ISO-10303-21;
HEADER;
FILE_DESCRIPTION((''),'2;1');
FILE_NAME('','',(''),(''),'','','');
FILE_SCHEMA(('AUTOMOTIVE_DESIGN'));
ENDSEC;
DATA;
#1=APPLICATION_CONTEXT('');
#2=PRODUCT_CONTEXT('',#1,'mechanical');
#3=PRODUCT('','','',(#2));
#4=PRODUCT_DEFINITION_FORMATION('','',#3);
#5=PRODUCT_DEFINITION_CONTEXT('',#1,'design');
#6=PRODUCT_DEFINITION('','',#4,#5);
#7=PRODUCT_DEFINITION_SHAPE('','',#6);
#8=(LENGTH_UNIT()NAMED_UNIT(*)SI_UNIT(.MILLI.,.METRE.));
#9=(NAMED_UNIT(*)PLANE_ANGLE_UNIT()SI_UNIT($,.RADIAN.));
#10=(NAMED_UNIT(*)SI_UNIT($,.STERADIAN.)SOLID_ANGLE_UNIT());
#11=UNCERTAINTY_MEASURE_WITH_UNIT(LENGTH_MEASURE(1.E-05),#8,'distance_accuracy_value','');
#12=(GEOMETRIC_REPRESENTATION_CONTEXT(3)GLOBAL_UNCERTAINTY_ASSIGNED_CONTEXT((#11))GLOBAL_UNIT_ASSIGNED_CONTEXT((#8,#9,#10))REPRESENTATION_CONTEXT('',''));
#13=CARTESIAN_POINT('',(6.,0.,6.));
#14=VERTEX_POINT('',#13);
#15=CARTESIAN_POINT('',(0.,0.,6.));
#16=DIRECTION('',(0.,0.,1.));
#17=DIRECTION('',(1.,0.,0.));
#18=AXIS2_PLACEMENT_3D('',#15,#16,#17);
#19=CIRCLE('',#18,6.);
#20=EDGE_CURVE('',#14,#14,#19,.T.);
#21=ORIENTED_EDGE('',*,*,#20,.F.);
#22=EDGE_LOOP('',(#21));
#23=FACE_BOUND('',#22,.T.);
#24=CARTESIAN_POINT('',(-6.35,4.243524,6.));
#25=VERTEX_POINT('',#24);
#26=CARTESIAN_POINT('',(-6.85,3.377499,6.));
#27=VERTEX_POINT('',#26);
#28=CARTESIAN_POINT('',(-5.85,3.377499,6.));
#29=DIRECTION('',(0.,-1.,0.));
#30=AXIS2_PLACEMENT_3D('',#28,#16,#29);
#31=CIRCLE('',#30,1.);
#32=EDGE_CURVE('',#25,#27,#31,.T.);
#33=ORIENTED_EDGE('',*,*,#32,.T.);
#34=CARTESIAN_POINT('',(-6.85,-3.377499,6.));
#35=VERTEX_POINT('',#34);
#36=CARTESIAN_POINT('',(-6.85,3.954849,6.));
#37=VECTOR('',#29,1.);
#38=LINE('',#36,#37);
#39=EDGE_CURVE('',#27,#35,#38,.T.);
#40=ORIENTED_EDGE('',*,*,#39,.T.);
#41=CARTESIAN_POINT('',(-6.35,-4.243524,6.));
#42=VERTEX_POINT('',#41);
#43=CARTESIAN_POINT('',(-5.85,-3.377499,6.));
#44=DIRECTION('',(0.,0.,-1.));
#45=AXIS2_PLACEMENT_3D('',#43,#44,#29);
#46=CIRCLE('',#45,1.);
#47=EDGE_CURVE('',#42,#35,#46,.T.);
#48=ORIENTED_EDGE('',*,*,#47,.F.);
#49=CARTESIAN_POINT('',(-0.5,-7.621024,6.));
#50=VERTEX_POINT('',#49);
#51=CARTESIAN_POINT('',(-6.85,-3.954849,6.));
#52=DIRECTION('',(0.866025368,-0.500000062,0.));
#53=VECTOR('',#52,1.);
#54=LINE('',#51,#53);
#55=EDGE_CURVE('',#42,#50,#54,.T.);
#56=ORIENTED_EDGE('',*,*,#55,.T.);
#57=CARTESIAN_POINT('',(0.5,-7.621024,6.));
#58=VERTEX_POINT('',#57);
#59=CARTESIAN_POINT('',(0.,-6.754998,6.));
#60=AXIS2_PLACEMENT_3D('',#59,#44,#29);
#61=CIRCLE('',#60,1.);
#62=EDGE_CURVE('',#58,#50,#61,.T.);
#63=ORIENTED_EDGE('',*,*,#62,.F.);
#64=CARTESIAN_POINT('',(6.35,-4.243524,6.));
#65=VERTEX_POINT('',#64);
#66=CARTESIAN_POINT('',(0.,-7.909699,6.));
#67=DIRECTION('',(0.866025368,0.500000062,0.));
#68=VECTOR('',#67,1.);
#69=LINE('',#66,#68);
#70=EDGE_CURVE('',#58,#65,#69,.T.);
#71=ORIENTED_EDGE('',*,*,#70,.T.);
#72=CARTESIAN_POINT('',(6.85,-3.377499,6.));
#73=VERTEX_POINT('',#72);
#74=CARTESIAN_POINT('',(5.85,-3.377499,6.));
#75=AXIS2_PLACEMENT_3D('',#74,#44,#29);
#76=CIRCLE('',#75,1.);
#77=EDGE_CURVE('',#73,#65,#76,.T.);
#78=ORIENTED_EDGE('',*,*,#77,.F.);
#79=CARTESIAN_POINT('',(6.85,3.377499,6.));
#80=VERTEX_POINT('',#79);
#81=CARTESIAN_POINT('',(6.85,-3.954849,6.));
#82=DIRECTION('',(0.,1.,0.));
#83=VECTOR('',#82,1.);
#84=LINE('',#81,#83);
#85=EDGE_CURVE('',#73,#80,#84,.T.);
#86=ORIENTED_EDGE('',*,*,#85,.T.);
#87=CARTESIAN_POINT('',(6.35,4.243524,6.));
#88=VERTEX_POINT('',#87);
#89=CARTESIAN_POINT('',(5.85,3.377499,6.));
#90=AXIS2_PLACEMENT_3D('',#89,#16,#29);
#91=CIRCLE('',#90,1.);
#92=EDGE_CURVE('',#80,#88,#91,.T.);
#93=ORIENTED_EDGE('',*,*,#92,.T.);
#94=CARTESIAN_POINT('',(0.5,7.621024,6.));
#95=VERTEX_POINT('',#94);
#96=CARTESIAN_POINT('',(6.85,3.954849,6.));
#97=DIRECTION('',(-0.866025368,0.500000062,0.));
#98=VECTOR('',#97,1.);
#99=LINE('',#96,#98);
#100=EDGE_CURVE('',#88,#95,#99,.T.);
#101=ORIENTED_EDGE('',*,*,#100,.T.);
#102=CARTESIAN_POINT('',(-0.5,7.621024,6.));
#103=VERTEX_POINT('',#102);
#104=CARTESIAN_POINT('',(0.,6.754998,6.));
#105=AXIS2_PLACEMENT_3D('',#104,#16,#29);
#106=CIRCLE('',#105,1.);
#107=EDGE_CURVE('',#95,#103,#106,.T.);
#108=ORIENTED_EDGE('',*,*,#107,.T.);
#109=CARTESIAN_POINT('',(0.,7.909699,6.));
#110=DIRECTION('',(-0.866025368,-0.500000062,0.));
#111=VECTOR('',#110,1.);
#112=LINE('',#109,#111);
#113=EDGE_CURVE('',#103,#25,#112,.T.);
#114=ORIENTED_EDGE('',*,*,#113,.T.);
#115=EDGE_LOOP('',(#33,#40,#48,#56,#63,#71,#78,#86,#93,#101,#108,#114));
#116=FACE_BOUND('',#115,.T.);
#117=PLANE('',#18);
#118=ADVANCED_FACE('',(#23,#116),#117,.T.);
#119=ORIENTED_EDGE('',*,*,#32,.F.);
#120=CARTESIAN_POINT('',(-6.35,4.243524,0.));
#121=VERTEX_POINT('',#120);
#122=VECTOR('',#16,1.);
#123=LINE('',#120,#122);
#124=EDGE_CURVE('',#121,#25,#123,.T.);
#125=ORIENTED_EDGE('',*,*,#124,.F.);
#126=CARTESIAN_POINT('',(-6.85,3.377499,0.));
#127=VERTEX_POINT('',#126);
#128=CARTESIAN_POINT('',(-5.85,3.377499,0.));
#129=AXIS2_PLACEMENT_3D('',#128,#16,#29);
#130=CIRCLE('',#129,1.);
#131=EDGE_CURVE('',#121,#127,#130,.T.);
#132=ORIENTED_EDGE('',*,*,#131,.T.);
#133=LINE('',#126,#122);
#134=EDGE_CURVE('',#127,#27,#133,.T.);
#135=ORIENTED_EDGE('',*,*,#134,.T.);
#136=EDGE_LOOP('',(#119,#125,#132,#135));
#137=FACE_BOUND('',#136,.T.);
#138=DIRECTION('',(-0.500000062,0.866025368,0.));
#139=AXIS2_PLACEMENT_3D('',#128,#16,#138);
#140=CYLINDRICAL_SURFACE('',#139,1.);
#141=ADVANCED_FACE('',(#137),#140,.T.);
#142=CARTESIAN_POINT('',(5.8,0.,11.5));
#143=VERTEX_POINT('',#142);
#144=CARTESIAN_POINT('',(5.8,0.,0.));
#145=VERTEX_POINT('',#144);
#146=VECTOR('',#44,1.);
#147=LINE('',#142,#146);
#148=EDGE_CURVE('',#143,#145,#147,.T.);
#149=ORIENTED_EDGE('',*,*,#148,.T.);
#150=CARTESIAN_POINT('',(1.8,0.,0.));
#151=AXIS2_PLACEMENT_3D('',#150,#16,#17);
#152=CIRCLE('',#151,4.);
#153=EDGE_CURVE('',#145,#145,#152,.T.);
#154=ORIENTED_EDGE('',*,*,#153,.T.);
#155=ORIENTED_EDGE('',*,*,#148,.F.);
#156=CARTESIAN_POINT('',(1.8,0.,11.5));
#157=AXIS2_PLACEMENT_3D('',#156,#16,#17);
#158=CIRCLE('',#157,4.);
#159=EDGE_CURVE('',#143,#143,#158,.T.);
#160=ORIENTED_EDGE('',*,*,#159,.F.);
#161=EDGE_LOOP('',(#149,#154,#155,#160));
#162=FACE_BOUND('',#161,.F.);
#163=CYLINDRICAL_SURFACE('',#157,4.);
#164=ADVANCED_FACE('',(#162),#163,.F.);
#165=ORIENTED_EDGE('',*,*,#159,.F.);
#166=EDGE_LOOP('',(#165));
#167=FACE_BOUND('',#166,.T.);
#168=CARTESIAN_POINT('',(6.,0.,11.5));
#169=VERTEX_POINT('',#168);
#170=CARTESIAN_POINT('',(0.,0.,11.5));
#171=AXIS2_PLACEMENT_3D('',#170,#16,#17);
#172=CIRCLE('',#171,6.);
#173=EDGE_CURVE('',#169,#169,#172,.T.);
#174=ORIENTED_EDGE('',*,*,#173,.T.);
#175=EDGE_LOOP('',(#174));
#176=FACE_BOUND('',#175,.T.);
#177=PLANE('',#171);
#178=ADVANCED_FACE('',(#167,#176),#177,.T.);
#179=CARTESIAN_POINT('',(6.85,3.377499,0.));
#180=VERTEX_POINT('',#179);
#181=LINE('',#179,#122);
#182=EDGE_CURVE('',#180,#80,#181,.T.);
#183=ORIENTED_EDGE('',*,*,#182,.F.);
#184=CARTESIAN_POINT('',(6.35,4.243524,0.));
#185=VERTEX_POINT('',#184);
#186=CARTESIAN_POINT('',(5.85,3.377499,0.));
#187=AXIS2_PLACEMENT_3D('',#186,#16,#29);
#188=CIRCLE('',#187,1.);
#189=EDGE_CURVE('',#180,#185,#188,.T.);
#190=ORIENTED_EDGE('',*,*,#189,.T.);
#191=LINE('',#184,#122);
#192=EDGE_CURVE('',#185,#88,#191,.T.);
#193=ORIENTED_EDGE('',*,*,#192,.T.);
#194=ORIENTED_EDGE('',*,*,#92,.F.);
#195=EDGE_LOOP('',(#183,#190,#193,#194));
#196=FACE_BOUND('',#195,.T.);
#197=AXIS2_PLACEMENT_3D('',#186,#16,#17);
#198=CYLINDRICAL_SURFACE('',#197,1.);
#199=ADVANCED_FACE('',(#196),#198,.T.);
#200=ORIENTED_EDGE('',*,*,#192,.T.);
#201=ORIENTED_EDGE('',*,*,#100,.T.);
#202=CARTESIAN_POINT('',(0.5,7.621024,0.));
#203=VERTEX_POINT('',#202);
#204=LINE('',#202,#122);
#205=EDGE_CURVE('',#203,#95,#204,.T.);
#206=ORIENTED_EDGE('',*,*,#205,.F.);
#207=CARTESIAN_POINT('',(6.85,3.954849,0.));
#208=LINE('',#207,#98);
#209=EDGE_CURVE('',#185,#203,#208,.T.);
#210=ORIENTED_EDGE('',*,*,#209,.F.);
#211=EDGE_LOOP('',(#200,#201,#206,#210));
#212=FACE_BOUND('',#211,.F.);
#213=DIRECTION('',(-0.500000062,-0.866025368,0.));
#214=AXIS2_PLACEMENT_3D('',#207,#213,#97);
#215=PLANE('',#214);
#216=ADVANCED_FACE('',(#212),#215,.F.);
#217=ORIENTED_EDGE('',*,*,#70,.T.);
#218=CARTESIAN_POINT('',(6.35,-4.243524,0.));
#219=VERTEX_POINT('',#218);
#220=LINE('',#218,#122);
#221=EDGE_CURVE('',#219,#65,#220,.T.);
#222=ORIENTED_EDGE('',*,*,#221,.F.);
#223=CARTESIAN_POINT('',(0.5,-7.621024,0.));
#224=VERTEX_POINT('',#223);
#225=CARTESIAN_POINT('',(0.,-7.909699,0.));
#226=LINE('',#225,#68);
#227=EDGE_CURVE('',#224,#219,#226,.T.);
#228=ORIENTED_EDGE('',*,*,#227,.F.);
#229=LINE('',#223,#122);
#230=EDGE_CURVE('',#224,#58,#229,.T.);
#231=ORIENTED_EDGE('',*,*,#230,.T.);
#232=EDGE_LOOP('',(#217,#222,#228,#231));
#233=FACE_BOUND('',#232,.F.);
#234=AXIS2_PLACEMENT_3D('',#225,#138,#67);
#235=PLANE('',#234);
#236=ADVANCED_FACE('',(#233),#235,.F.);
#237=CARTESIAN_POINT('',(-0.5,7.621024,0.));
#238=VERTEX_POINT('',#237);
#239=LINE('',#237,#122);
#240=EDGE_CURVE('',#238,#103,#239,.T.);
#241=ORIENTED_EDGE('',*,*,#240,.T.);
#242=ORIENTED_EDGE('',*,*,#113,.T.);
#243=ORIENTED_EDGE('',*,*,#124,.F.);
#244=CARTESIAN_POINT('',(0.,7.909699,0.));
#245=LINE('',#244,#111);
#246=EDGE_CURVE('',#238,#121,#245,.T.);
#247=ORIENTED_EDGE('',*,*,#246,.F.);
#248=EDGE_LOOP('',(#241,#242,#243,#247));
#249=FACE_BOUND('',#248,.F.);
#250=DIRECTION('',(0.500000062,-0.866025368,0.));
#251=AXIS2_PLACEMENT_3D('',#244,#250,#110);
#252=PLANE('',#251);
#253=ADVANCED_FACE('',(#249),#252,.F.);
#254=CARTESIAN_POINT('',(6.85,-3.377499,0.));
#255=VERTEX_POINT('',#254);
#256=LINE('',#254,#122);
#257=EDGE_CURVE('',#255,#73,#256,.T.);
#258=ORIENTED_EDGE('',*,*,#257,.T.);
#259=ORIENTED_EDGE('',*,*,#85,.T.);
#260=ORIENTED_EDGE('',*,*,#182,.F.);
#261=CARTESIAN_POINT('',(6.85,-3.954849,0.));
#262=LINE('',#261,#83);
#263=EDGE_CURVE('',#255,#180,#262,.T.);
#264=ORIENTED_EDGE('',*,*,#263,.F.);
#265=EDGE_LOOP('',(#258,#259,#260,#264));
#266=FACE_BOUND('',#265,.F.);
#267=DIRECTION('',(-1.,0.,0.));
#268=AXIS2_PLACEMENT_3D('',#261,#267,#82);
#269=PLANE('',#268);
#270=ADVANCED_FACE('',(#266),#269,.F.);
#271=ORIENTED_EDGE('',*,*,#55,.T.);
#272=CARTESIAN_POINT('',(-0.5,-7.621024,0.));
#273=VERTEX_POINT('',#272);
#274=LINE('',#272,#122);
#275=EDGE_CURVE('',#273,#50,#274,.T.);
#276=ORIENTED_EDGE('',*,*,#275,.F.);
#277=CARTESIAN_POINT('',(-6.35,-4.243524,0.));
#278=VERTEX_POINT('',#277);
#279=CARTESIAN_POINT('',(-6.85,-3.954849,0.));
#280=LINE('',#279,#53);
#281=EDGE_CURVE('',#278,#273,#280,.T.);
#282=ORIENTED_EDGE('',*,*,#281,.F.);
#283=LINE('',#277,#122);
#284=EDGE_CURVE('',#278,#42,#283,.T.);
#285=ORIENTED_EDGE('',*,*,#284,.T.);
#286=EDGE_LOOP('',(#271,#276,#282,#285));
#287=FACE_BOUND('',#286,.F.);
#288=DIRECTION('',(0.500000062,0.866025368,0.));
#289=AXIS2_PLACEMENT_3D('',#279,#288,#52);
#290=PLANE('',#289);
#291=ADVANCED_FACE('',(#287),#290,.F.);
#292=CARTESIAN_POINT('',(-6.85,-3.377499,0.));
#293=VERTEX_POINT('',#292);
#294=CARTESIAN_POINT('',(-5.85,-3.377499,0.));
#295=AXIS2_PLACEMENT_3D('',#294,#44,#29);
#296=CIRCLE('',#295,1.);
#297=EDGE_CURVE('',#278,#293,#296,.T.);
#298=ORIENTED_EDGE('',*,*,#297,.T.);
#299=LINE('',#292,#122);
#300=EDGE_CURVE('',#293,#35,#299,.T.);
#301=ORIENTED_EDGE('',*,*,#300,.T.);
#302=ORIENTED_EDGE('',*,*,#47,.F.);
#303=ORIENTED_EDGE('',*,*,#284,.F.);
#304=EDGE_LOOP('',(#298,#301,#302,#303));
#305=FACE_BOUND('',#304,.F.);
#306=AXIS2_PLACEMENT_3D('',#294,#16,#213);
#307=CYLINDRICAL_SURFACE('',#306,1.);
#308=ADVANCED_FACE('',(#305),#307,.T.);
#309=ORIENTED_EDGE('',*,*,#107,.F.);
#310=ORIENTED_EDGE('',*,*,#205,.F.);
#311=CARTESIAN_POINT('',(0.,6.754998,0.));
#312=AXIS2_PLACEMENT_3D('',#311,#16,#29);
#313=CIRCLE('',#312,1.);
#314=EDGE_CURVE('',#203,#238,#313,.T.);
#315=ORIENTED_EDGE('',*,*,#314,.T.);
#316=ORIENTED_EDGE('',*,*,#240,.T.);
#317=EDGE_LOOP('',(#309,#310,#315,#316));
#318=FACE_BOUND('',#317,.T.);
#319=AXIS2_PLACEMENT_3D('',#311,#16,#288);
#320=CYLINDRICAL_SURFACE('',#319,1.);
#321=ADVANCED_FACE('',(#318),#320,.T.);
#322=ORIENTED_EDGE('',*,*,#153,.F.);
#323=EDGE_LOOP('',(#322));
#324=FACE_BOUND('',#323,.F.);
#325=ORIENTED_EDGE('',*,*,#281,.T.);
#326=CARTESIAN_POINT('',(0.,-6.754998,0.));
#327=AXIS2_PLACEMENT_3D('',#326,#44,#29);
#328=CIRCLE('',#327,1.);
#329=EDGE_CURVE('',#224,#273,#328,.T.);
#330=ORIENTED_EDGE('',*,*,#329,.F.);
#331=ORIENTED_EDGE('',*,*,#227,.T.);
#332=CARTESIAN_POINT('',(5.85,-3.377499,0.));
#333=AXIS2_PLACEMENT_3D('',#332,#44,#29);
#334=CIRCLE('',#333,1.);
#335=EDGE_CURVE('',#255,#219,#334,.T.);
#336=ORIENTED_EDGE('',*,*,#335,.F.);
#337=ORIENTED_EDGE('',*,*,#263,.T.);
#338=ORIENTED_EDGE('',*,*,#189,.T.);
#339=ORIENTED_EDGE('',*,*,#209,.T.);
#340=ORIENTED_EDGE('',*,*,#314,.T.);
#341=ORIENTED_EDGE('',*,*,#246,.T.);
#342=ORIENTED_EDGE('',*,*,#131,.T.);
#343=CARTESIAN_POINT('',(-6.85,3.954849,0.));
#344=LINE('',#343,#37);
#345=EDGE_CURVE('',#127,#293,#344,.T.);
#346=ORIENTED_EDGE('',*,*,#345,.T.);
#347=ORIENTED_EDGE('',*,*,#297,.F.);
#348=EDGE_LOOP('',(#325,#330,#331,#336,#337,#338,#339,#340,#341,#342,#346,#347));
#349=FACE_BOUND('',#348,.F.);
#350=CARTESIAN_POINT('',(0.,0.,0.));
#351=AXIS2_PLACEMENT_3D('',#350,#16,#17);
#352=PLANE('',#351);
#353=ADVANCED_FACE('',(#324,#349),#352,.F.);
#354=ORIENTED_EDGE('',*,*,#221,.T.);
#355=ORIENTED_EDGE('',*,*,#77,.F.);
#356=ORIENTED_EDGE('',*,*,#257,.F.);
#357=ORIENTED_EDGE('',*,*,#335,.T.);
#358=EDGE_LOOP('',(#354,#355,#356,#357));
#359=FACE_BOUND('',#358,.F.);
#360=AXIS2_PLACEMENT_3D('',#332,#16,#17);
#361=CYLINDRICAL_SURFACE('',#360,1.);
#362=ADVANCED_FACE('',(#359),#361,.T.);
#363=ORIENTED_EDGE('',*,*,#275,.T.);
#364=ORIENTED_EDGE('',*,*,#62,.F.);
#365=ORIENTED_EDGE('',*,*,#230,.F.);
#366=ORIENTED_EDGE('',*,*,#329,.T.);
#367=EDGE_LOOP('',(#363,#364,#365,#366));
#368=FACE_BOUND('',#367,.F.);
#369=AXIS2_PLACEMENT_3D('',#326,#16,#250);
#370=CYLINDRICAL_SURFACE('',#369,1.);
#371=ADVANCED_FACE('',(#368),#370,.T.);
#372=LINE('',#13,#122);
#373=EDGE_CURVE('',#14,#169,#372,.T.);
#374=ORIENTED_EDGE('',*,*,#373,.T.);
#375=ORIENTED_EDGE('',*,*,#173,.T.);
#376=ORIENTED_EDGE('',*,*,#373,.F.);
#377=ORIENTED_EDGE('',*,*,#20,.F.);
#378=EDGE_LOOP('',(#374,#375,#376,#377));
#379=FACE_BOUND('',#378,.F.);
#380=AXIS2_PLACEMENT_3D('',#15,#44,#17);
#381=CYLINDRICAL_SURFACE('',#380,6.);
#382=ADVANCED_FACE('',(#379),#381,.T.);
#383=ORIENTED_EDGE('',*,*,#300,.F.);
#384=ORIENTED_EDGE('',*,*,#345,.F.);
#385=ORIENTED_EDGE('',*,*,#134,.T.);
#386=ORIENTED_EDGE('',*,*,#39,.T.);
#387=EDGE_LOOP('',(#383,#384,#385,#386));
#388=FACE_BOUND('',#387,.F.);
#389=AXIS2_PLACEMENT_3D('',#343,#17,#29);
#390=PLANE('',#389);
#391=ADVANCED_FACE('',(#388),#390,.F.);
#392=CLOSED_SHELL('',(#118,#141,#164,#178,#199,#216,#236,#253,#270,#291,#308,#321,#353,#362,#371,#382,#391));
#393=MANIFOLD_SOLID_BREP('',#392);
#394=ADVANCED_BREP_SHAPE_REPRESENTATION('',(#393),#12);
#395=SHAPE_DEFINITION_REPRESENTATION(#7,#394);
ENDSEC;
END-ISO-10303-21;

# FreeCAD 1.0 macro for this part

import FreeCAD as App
import Part
import Sketcher
from FreeCAD import Vector
Q = App.Units.Quantity


def edges_at(feature, points):
    """Names of the edges that pass closest to the given points."""
    edges = feature.Shape.Edges
    near = lambda p: min(range(len(edges)), key=lambda i: edges[i].distToShape(Part.Vertex(*p))[0])
    return sorted({f"Edge{near(p) + 1}" for p in points})


def add_polygon(sketch, points):
    """Adds a closed chain of lines whose ends are joined by coincident constraints."""
    first, n = sketch.GeometryCount, len(points)
    for a, b in zip(points, points[1:] + points[:1]):
        sketch.addGeometry(Part.LineSegment(App.Vector(*a, 0), App.Vector(*b, 0)), False)
    for i in range(n):
        sketch.addConstraint(Sketcher.Constraint("Coincident", first + i, 2, first + (i + 1) % n, 1))

doc = App.newDocument("Part")
body = doc.addObject("PartDesign::Body", "Body")

sketch1 = doc.addObject("Sketcher::SketchObject", "Sketch")
body.addObject(sketch1)
sketch1.AttachmentSupport = (doc.XY_Plane, [""])
sketch1.MapMode = "FlatFace"
add_polygon(sketch1, [(7, -4), (7, 4), (0, 8), (-7, 4), (-7, -4), (0, -8)])
sketch1.addConstraint([
    Sketcher.Constraint("Vertical", 0),
    Sketcher.Constraint("Vertical", 3),
    Sketcher.Constraint("Symmetric", 0, 2, 3, 2, -1, 1),
    Sketcher.Constraint("Symmetric", 1, 2, 4, 2, -1, 1),
    Sketcher.Constraint("PointOnObject", 1, 2, -2),
    Sketcher.Constraint("Parallel", 2, 5),
    Sketcher.Constraint("Horizontal", 0, 2, 2, 2),
    Sketcher.Constraint("Angle", 1, Q("149.999996 deg")),
    Sketcher.Constraint("DistanceX", 2, 2, 0, 2, Q("13.7 mm")),
    Sketcher.Constraint("DistanceY", -1, 1, 1, 2, Q("7.909699 mm")),
])
pad1 = doc.addObject("PartDesign::Pad", "Pad")
body.addObject(pad1)
pad1.Profile = sketch1
pad1.Length = 6

sketch2 = doc.addObject("Sketcher::SketchObject", "Sketch001")
body.addObject(sketch2)
sketch2.AttachmentSupport = (doc.XY_Plane, [""])
sketch2.MapMode = "FlatFace"
sketch2.AttachmentOffset = App.Placement(Vector(0, 0, 6), App.Rotation())
sketch2.addGeometry(Part.Circle(Vector(0, 0, 0), Vector(0, 0, 1), 6), False)
sketch2.addConstraint([
    Sketcher.Constraint("Coincident", 0, 3, -1, 1),
    Sketcher.Constraint("Diameter", 0, Q("12 mm")),
])
pad2 = doc.addObject("PartDesign::Pad", "Pad001")
body.addObject(pad2)
pad2.Profile = sketch2
pad2.Length = 5.5

sketch3 = doc.addObject("Sketcher::SketchObject", "Sketch002")
body.addObject(sketch3)
sketch3.AttachmentSupport = (doc.XY_Plane, [""])
sketch3.MapMode = "FlatFace"
sketch3.AttachmentOffset = App.Placement(Vector(0, 0, 11.5), App.Rotation())
sketch3.addGeometry(Part.Circle(Vector(1.8, 0, 0), Vector(0, 0, 1), 4), False)
sketch3.addConstraint([
    Sketcher.Constraint("PointOnObject", 0, 3, -1),
    Sketcher.Constraint("Diameter", 0, Q("8 mm")),
    Sketcher.Constraint("DistanceX", -1, 1, 0, 3, Q("1.8 mm")),
])
pocket1 = doc.addObject("PartDesign::Pocket", "Pocket")
body.addObject(pocket1)
pocket1.Profile = sketch3
pocket1.Type = "ThroughAll"
doc.recompute()

fillet = doc.addObject("PartDesign::Fillet", "Fillet")
body.addObject(fillet)
fillet.Base = (pocket1, edges_at(pocket1, [
    (6.85, -3.955, 3),
    (0, -7.91, 3),
    (6.85, 3.955, 3),
    (-6.85, -3.955, 3),
    (-6.85, 3.955, 3),
    (0, 7.91, 3),
]))
fillet.Radius = 1

doc.recompute()
